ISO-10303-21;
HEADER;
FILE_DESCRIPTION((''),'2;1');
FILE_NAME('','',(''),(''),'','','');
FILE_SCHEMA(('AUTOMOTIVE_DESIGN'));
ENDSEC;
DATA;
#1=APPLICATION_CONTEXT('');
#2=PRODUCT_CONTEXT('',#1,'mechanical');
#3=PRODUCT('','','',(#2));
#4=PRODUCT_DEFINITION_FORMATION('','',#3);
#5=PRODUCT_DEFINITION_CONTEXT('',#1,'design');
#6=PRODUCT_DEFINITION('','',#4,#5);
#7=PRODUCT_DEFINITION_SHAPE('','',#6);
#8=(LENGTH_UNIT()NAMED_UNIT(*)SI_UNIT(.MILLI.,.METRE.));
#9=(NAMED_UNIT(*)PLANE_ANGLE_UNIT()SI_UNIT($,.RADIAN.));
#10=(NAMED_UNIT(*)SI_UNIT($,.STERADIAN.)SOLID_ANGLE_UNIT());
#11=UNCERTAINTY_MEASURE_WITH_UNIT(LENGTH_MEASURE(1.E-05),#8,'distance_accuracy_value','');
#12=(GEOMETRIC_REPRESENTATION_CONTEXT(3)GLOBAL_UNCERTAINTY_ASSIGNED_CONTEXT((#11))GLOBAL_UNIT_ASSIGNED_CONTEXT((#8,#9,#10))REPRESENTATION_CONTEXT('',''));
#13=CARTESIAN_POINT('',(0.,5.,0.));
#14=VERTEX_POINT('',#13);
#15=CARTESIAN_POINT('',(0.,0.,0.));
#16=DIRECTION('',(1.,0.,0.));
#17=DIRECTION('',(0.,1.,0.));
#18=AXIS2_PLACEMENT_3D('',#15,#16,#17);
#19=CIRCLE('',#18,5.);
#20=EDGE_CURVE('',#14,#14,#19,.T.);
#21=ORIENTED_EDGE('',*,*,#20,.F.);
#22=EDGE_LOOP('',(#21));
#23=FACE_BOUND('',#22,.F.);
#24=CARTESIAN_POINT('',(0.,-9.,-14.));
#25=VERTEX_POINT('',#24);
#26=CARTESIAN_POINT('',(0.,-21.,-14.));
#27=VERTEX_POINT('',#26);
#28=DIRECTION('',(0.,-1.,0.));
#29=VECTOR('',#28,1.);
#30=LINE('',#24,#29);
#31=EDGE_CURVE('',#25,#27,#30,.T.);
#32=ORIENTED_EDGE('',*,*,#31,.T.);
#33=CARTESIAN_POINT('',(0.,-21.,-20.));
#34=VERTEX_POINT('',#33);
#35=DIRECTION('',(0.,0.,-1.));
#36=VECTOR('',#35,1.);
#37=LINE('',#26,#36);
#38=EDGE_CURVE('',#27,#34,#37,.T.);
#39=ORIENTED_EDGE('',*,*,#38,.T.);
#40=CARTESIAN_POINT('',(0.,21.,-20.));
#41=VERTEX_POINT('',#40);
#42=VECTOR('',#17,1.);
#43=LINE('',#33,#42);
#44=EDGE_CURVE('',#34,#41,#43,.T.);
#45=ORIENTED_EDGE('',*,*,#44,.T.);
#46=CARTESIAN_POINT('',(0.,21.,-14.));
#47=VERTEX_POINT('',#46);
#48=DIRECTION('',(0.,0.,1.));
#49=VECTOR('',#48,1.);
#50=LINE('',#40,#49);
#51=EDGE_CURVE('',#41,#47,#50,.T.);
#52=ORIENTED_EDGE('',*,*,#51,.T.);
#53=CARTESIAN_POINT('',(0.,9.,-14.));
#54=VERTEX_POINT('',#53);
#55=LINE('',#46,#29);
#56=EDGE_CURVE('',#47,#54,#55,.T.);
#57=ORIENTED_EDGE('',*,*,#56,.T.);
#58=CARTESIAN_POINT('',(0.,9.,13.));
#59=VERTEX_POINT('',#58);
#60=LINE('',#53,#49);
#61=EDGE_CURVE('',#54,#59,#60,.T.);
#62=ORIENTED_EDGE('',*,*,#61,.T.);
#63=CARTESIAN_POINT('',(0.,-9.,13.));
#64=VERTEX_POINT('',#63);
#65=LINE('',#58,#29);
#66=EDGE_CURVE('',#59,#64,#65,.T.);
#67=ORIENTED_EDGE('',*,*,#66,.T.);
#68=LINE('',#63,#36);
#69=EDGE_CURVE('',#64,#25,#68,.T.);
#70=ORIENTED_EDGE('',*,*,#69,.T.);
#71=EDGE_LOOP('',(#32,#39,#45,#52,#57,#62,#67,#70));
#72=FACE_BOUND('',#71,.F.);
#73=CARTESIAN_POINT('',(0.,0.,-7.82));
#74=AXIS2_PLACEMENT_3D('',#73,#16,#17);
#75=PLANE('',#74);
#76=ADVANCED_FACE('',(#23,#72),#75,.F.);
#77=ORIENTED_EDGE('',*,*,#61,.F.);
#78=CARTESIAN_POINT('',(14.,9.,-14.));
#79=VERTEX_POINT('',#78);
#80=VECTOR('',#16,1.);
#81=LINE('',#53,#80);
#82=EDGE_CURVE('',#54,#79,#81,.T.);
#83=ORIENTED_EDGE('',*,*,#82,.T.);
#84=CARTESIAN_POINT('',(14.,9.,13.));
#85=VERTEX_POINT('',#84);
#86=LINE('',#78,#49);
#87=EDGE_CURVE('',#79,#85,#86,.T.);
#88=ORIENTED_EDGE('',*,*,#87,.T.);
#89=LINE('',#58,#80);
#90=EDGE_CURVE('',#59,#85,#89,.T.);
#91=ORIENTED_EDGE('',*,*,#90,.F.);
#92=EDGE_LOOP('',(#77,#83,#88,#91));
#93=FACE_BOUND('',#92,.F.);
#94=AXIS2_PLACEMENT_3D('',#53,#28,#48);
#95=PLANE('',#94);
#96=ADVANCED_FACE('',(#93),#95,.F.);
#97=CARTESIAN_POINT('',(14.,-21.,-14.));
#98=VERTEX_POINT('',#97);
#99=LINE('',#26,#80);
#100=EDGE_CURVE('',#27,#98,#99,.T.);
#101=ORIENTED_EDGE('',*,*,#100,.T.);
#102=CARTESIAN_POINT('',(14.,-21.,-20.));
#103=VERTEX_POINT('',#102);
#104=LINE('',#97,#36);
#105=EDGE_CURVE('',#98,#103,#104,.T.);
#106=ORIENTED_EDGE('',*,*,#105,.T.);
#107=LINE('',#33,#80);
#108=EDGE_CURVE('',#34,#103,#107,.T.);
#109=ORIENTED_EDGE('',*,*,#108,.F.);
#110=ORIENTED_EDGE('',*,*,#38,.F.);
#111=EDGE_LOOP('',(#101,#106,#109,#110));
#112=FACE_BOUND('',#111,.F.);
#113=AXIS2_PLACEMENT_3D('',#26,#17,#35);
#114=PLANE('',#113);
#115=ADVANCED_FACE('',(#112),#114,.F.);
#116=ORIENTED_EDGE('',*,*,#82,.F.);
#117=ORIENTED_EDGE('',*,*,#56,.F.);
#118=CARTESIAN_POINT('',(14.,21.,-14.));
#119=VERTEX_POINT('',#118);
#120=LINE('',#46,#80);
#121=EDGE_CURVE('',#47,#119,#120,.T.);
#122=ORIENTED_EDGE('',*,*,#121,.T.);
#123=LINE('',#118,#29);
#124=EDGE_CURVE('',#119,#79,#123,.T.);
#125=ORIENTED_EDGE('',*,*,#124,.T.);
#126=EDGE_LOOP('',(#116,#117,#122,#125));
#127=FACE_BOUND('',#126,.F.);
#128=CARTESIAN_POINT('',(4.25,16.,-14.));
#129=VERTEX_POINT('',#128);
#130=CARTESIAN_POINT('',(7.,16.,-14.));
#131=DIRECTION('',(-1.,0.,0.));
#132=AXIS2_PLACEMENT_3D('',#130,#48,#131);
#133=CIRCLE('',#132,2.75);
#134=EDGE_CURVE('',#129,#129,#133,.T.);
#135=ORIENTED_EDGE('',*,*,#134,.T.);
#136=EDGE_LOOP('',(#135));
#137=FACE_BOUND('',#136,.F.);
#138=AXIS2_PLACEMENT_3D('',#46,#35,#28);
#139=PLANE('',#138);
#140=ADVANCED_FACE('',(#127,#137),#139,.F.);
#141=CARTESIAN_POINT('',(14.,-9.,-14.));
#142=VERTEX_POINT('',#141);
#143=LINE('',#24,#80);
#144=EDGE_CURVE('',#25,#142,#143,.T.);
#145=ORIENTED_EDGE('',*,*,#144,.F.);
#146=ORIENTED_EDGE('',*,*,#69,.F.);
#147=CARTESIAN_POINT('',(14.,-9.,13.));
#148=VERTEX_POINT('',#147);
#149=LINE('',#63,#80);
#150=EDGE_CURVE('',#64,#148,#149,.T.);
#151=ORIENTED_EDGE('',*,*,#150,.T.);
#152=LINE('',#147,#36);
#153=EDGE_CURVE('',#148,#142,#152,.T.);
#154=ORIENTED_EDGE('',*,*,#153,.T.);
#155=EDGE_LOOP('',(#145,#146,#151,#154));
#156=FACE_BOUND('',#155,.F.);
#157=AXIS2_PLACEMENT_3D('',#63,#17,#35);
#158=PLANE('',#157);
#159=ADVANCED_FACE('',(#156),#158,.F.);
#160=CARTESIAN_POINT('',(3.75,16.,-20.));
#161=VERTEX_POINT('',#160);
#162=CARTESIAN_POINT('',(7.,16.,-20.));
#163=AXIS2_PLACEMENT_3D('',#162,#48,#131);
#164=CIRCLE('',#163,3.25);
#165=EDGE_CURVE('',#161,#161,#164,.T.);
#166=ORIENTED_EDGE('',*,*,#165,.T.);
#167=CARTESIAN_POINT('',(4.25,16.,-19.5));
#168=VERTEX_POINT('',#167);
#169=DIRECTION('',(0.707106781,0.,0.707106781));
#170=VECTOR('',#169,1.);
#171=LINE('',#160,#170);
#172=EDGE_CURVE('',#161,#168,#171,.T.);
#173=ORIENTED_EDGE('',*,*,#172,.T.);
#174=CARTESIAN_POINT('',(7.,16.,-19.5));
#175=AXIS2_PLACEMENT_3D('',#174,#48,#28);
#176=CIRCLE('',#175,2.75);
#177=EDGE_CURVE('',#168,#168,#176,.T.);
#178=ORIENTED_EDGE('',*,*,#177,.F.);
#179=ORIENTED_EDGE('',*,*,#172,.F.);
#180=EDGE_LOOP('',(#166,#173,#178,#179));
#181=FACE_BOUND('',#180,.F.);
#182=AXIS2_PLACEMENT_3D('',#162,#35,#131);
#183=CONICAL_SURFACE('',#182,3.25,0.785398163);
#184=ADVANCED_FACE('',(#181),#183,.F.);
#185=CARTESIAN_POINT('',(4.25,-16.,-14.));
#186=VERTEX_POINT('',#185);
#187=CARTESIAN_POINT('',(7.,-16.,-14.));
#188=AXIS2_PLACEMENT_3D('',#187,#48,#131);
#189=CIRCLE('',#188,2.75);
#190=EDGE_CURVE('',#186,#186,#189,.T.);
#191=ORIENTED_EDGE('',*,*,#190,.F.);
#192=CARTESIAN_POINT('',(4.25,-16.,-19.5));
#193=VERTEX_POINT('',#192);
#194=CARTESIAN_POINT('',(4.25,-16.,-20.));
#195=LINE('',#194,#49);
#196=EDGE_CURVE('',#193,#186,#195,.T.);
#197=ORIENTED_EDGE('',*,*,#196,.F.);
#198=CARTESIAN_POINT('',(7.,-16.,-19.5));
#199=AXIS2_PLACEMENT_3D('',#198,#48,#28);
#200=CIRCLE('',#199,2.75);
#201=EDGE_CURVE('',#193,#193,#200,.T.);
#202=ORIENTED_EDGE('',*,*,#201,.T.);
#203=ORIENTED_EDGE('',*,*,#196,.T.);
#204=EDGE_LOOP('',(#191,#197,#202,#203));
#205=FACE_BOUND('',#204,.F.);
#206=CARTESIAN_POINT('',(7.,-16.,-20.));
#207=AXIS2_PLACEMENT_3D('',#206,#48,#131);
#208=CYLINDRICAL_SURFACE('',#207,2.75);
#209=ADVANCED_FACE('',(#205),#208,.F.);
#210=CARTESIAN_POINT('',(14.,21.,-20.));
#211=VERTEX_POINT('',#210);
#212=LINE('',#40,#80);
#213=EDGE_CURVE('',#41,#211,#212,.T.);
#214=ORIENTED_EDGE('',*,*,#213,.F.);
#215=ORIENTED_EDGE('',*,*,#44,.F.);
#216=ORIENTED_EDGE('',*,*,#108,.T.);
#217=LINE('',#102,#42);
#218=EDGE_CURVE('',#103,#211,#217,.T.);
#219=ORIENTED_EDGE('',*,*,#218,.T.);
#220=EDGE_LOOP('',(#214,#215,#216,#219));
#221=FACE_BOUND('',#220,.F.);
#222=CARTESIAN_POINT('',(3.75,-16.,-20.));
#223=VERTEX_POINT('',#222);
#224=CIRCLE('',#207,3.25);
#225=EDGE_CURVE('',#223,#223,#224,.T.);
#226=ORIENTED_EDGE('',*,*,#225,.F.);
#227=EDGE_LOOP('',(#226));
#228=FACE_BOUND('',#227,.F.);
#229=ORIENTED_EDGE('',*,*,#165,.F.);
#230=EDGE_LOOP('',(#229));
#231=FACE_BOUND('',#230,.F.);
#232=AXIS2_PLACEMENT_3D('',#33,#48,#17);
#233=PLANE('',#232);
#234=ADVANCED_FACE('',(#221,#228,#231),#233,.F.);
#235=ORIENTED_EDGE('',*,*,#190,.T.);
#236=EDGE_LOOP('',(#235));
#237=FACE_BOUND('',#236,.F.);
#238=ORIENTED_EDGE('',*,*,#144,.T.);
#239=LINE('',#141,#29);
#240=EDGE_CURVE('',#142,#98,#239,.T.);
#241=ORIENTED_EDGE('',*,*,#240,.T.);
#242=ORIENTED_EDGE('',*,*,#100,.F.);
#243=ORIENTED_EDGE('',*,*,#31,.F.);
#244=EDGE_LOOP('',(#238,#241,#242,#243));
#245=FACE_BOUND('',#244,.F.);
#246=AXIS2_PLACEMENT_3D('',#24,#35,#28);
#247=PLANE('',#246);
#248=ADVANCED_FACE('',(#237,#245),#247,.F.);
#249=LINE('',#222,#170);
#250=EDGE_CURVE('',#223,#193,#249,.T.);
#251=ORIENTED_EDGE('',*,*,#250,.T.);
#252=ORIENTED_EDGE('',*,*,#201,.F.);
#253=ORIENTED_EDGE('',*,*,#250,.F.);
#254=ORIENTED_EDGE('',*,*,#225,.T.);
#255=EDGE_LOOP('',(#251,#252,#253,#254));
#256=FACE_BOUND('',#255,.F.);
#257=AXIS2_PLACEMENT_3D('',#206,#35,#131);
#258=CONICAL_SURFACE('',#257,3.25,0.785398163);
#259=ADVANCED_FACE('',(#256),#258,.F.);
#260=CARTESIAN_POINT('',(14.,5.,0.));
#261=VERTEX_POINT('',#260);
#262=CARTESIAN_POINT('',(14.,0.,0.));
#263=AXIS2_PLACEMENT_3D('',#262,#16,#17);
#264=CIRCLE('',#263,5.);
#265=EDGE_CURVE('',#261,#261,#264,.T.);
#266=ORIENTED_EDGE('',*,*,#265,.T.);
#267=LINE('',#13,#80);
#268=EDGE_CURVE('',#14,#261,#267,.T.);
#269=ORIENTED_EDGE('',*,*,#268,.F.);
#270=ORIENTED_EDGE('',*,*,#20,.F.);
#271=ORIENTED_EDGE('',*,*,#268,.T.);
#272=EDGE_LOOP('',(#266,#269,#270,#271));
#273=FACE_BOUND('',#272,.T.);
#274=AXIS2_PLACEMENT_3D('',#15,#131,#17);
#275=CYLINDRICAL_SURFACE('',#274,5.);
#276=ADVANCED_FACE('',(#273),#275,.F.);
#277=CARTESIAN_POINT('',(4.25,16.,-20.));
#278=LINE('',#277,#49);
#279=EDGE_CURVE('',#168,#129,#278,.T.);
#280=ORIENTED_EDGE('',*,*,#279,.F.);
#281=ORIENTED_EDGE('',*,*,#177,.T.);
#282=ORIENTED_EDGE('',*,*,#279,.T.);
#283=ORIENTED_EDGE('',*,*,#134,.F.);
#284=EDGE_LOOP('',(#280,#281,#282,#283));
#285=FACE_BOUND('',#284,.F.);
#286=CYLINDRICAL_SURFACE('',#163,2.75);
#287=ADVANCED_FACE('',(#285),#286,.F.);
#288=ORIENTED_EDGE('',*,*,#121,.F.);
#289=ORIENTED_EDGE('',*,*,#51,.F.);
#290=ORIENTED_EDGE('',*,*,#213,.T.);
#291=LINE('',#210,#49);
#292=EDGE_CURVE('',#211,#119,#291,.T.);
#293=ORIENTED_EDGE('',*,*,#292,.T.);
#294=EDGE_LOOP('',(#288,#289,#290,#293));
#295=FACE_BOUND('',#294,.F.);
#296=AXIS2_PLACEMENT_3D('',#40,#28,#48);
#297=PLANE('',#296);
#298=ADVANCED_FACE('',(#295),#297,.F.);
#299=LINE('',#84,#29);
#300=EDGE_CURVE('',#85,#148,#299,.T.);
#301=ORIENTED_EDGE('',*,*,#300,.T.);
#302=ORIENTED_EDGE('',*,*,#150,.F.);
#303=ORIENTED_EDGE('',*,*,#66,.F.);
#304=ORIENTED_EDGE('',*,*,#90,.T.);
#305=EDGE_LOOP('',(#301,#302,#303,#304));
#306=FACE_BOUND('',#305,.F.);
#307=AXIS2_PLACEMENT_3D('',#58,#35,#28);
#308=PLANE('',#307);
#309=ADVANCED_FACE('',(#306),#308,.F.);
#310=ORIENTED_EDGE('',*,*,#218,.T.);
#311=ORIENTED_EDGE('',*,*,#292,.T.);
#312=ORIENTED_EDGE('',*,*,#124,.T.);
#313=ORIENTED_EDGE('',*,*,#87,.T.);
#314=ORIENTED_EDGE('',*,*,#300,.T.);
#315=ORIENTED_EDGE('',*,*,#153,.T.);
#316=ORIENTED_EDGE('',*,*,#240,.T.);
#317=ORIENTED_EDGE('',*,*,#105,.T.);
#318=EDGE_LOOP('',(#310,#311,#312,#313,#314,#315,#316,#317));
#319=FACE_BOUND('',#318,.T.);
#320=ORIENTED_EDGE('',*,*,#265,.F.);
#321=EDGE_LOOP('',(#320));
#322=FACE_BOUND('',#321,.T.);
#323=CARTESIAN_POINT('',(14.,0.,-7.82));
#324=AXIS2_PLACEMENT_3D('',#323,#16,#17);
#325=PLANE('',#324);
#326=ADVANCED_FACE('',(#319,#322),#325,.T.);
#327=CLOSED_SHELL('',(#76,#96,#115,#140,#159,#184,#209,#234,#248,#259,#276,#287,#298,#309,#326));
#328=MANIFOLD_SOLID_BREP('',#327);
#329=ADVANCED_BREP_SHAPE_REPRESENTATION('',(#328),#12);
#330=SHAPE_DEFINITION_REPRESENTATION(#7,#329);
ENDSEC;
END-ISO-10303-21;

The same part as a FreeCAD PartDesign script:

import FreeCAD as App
import Part
import Sketcher


def add_polygon(sketch, points):
    """Adds a closed chain of lines whose ends are joined by coincident constraints."""
    first, n = sketch.GeometryCount, len(points)
    for a, b in zip(points, points[1:] + points[:1]):
        sketch.addGeometry(Part.LineSegment(App.Vector(*a, 0), App.Vector(*b, 0)), False)
    for i in range(n):
        sketch.addConstraint(Sketcher.Constraint("Coincident", first + i, 2, first + (i + 1) % n, 1))

doc = App.newDocument("Part")
body = doc.addObject("PartDesign::Body", "Body")

# Sketch on YZ plane
sketch1 = body.newObject("Sketcher::SketchObject", "Sketch")
sketch1.AttachmentSupport = (doc.getObject("YZ_Plane"), [""])
sketch1.MapMode = "FlatFace"
add_polygon(sketch1, [(-21, -20), (21, -20), (21, -14), (9, -14), (9, 13), (-9, 13), (-9, -14), (-21, -14)])  # lines 0-7
sketch1.addGeometry(Part.Circle(App.Vector(0, 0, 0), App.Vector(0, 0, 1), 5), False)  # 8
sketch1.addConstraint([
    Sketcher.Constraint("Horizontal", 0),
    Sketcher.Constraint("Vertical", 1),
    Sketcher.Constraint("Horizontal", 2),
    Sketcher.Constraint("Vertical", 3),
    Sketcher.Constraint("Horizontal", 4),
    Sketcher.Constraint("Vertical", 5),
    Sketcher.Constraint("Horizontal", 6),
    Sketcher.Constraint("Vertical", 7),
    Sketcher.Constraint("Coincident", 8, 3, -1, 1),
    Sketcher.Constraint("Symmetric", 2, 2, 5, 2, -2),
    Sketcher.Constraint("Equal", 2, 6),
    Sketcher.Constraint("Diameter", 8, 10.0),
    Sketcher.Constraint("DistanceX", 0, 1, 0, 2, 42.0),
    Sketcher.Constraint("DistanceX", 2, 2, 2, 1, 12.0),
    Sketcher.Constraint("DistanceY", 1, 1, 1, 2, 6.0),
    Sketcher.Constraint("DistanceY", 3, 1, 3, 2, 27.0),
    Sketcher.Constraint("DistanceY", 0, 2, -1, 1, 20.0),
])
pad1 = body.newObject("PartDesign::Pad", "Pad")
pad1.Profile = sketch1
pad1.Length = 14

# Sketch on XY plane
sketch2 = body.newObject("Sketcher::SketchObject", "Sketch001")
sketch2.AttachmentSupport = (doc.getObject("XY_Plane"), [""])
sketch2.MapMode = "FlatFace"
sketch2.AttachmentOffset = App.Placement(App.Vector(0, 0, -20), App.Rotation())
sketch2.addGeometry([
    Part.Circle(App.Vector(7, 16, 0), App.Vector(0, 0, 1), 2.8),
    Part.Circle(App.Vector(7, -16, 0), App.Vector(0, 0, 1), 2.8),
], False)
sketch2.addConstraint([
    Sketcher.Constraint("Equal", 0, 1),
    Sketcher.Constraint("Symmetric", 0, 3, 1, 3, -1),
    Sketcher.Constraint("Diameter", 0, 5.5),
    Sketcher.Constraint("DistanceX", -1, 1, 0, 3, 7.0),
    Sketcher.Constraint("DistanceY", -1, 1, 0, 3, 16.0),
])
doc.recompute()
hole = body.newObject("PartDesign::Hole", "Hole")
hole.Profile = sketch2
hole.ThreadType = "None"
hole.Diameter = 5.5
hole.DepthType = "ThroughAll"
hole.HoleCutType = "Countersink"
hole.HoleCutDiameter = 6.5
hole.HoleCutCountersinkAngle = 90
hole.Reversed = True

doc.recompute()
